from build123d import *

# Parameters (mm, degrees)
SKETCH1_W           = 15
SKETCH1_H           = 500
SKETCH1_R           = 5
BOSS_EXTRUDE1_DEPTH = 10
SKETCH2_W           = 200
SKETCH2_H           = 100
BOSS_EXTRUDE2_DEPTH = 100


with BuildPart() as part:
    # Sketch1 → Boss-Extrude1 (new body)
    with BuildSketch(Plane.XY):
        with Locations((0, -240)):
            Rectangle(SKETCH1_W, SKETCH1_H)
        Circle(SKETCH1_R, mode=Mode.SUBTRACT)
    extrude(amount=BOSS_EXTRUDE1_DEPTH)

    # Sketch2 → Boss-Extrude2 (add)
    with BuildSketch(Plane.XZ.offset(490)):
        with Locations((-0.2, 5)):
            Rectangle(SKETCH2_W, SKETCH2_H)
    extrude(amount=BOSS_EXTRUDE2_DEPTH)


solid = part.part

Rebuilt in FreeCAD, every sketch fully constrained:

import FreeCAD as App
import Part
import Sketcher

V = App.Vector


def add_polygon(sketch, points):
    """Adds a closed chain of lines whose ends are joined by coincident constraints."""
    first, n = sketch.GeometryCount, len(points)
    for a, b in zip(points, points[1:] + points[:1]):
        sketch.addGeometry(Part.LineSegment(App.Vector(*a, 0), App.Vector(*b, 0)), False)
    for i in range(n):
        sketch.addConstraint(Sketcher.Constraint("Coincident", first + i, 2, first + (i + 1) % n, 1))

doc = App.newDocument("Part")
body = doc.addObject("PartDesign::Body", "Body")

# Sketch on XY plane
sketch1 = body.newObject("Sketcher::SketchObject", "Sketch")
sketch1.AttachmentSupport = (doc.getObject("XY_Plane"), [""])
sketch1.MapMode = "FlatFace"
add_polygon(sketch1, [(-7.5, 10), (-7.5, -490), (7.5, -490), (7.5, 10)])  # lines 0-3
sketch1.addGeometry(Part.Circle(V(0, 0, 0), V(0, 0, 1), 5), False)  # 4
sketch1.addConstraint([
    Sketcher.Constraint("Vertical", 0),
    Sketcher.Constraint("Horizontal", 1),
    Sketcher.Constraint("Vertical", 2),
    Sketcher.Constraint("Horizontal", 3),
    Sketcher.Constraint("Coincident", 4, 3, -1, 1),
    Sketcher.Constraint("Diameter", 4, 10.0),
    Sketcher.Constraint("DistanceX", 1, 1, 1, 2, 15.0),
    Sketcher.Constraint("DistanceY", 0, 2, 0, 1, 500.0),
    Sketcher.Constraint("DistanceY", 0, 2, -1, 1, 490.0),
    Sketcher.Constraint("DistanceX", 0, 2, -1, 1, 7.5),
])
pad1 = body.newObject("PartDesign::Pad", "Pad")
pad1.Profile = sketch1
pad1.Length = 10

# Sketch on XZ plane
sketch2 = body.newObject("Sketcher::SketchObject", "Sketch001")
sketch2.AttachmentSupport = (doc.getObject("XZ_Plane"), [""])
sketch2.MapMode = "FlatFace"
sketch2.AttachmentOffset = App.Placement(V(0, 0, 490), App.Rotation())
add_polygon(sketch2, [(-100.2, 55), (-100.2, -45), (99.8, -45), (99.8, 55)])  # lines 0-3
sketch2.addConstraint([
    Sketcher.Constraint("Vertical", 0),
    Sketcher.Constraint("Horizontal", 1),
    Sketcher.Constraint("Vertical", 2),
    Sketcher.Constraint("Horizontal", 3),
    Sketcher.Constraint("DistanceX", 1, 1, 1, 2, 200.0),
    Sketcher.Constraint("DistanceY", 0, 2, 0, 1, 100.0),
    Sketcher.Constraint("DistanceY", 0, 2, -1, 1, 45.0),
    Sketcher.Constraint("DistanceX", 0, 2, -1, 1, 100.2),
])
pad2 = body.newObject("PartDesign::Pad", "Pad001")
pad2.Profile = sketch2
pad2.Length = 100

doc.recompute()
